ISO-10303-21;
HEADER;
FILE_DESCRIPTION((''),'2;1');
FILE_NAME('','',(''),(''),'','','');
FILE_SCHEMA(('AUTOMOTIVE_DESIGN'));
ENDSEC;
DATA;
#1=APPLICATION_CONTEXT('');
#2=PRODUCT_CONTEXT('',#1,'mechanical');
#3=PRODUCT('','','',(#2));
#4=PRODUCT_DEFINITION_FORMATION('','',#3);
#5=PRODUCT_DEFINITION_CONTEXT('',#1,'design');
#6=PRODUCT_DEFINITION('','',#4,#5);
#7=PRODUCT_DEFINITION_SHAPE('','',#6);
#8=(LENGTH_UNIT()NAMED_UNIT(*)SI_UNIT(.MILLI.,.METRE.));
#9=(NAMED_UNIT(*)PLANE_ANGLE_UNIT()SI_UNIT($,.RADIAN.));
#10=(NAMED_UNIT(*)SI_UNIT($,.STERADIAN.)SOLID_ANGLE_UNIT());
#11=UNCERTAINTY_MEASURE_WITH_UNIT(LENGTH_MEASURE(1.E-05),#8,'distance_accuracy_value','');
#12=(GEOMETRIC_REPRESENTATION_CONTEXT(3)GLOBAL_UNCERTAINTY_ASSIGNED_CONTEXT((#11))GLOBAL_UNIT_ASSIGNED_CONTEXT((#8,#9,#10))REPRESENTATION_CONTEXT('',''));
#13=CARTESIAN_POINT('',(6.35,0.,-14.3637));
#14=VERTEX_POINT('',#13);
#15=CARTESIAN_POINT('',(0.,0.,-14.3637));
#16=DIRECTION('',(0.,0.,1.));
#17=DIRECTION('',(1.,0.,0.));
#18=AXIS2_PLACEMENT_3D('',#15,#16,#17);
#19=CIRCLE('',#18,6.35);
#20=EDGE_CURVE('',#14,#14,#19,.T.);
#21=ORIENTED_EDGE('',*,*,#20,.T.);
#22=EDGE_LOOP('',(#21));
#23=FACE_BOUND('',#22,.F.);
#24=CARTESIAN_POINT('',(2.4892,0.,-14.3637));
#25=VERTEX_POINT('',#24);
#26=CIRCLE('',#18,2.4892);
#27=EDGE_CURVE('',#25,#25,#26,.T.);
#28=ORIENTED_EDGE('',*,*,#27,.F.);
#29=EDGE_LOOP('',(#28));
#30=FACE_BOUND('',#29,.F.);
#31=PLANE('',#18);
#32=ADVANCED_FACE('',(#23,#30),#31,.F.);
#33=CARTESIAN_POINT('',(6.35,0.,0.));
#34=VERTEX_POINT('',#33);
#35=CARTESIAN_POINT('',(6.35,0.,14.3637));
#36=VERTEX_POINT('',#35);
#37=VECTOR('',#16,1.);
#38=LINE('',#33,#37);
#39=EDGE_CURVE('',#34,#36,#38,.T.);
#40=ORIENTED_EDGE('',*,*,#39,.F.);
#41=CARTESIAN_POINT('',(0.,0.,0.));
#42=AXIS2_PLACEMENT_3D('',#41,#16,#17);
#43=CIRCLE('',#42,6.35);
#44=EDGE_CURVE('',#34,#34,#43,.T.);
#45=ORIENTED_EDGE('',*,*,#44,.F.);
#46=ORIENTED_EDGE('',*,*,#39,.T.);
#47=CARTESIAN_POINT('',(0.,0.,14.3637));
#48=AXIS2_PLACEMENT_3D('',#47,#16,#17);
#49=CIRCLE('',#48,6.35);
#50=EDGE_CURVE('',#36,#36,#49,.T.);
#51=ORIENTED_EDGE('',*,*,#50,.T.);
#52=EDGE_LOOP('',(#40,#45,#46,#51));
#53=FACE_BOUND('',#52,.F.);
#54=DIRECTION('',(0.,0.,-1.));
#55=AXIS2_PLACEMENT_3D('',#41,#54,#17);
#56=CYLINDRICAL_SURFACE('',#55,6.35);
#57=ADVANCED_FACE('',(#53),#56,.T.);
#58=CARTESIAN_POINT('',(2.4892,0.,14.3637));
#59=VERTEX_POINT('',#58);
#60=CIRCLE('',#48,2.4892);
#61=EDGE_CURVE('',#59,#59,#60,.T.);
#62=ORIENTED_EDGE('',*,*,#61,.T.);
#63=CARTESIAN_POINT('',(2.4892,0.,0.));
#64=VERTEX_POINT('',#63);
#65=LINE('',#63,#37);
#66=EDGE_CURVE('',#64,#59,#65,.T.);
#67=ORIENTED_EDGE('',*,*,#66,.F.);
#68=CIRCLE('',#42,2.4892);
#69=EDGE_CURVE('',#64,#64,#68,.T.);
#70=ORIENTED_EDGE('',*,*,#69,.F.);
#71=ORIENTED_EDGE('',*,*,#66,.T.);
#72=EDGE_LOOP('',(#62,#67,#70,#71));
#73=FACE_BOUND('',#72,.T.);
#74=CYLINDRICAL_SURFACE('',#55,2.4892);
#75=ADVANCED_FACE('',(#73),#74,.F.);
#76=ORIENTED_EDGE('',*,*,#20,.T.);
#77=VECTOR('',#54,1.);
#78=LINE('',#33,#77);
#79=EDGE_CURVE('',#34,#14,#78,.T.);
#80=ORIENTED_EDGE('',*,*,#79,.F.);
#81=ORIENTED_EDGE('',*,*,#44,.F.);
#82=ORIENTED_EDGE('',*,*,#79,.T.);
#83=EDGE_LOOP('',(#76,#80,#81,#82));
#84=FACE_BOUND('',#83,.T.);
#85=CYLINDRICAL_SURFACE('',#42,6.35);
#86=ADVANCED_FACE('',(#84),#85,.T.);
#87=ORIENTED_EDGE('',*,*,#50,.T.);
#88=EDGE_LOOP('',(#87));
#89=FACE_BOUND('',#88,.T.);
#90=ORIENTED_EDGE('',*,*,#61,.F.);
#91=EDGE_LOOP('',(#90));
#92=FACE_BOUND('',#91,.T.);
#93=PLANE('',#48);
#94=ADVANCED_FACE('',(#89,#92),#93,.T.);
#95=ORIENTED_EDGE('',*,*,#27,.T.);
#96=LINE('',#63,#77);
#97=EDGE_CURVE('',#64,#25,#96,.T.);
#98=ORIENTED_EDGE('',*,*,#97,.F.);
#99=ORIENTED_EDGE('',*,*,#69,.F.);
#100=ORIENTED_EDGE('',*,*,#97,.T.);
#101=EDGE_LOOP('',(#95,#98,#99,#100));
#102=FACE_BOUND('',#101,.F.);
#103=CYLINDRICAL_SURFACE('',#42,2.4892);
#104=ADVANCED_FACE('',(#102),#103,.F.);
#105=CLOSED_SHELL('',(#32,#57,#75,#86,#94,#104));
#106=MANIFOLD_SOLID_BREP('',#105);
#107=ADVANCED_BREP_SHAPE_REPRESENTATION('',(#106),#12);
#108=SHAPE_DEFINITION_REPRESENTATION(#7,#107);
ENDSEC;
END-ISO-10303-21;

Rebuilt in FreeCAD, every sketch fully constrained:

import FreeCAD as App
import Part
import Sketcher
from FreeCAD import Vector
Q = App.Units.Quantity

doc = App.newDocument("Part")
body = doc.addObject("PartDesign::Body", "Body")

sketch1 = body.newObject("Sketcher::SketchObject", "Sketch")
sketch1.AttachmentSupport = (doc.getObject("XY_Plane"), [""])
sketch1.MapMode = "FlatFace"
sketch1.addGeometry([
    Part.Circle(Vector(0, 0, 0), Vector(0, 0, 1), 6.3),
    Part.Circle(Vector(0, 0, 0), Vector(0, 0, 1), 2.5),
], False)
sketch1.addConstraint([
    Sketcher.Constraint("Coincident", 0, 3, -1, 1),
    Sketcher.Constraint("Coincident", 1, 3, -1, 1),
    Sketcher.Constraint("Diameter", 0, Q("0.5 in")),
    Sketcher.Constraint("Diameter", 1, Q("0.196 in")),
])
pad1 = body.newObject("PartDesign::Pad", "Pad")
pad1.Profile = sketch1
pad1.Length = Q("1.131 in")
pad1.Midplane = True

doc.recompute()
